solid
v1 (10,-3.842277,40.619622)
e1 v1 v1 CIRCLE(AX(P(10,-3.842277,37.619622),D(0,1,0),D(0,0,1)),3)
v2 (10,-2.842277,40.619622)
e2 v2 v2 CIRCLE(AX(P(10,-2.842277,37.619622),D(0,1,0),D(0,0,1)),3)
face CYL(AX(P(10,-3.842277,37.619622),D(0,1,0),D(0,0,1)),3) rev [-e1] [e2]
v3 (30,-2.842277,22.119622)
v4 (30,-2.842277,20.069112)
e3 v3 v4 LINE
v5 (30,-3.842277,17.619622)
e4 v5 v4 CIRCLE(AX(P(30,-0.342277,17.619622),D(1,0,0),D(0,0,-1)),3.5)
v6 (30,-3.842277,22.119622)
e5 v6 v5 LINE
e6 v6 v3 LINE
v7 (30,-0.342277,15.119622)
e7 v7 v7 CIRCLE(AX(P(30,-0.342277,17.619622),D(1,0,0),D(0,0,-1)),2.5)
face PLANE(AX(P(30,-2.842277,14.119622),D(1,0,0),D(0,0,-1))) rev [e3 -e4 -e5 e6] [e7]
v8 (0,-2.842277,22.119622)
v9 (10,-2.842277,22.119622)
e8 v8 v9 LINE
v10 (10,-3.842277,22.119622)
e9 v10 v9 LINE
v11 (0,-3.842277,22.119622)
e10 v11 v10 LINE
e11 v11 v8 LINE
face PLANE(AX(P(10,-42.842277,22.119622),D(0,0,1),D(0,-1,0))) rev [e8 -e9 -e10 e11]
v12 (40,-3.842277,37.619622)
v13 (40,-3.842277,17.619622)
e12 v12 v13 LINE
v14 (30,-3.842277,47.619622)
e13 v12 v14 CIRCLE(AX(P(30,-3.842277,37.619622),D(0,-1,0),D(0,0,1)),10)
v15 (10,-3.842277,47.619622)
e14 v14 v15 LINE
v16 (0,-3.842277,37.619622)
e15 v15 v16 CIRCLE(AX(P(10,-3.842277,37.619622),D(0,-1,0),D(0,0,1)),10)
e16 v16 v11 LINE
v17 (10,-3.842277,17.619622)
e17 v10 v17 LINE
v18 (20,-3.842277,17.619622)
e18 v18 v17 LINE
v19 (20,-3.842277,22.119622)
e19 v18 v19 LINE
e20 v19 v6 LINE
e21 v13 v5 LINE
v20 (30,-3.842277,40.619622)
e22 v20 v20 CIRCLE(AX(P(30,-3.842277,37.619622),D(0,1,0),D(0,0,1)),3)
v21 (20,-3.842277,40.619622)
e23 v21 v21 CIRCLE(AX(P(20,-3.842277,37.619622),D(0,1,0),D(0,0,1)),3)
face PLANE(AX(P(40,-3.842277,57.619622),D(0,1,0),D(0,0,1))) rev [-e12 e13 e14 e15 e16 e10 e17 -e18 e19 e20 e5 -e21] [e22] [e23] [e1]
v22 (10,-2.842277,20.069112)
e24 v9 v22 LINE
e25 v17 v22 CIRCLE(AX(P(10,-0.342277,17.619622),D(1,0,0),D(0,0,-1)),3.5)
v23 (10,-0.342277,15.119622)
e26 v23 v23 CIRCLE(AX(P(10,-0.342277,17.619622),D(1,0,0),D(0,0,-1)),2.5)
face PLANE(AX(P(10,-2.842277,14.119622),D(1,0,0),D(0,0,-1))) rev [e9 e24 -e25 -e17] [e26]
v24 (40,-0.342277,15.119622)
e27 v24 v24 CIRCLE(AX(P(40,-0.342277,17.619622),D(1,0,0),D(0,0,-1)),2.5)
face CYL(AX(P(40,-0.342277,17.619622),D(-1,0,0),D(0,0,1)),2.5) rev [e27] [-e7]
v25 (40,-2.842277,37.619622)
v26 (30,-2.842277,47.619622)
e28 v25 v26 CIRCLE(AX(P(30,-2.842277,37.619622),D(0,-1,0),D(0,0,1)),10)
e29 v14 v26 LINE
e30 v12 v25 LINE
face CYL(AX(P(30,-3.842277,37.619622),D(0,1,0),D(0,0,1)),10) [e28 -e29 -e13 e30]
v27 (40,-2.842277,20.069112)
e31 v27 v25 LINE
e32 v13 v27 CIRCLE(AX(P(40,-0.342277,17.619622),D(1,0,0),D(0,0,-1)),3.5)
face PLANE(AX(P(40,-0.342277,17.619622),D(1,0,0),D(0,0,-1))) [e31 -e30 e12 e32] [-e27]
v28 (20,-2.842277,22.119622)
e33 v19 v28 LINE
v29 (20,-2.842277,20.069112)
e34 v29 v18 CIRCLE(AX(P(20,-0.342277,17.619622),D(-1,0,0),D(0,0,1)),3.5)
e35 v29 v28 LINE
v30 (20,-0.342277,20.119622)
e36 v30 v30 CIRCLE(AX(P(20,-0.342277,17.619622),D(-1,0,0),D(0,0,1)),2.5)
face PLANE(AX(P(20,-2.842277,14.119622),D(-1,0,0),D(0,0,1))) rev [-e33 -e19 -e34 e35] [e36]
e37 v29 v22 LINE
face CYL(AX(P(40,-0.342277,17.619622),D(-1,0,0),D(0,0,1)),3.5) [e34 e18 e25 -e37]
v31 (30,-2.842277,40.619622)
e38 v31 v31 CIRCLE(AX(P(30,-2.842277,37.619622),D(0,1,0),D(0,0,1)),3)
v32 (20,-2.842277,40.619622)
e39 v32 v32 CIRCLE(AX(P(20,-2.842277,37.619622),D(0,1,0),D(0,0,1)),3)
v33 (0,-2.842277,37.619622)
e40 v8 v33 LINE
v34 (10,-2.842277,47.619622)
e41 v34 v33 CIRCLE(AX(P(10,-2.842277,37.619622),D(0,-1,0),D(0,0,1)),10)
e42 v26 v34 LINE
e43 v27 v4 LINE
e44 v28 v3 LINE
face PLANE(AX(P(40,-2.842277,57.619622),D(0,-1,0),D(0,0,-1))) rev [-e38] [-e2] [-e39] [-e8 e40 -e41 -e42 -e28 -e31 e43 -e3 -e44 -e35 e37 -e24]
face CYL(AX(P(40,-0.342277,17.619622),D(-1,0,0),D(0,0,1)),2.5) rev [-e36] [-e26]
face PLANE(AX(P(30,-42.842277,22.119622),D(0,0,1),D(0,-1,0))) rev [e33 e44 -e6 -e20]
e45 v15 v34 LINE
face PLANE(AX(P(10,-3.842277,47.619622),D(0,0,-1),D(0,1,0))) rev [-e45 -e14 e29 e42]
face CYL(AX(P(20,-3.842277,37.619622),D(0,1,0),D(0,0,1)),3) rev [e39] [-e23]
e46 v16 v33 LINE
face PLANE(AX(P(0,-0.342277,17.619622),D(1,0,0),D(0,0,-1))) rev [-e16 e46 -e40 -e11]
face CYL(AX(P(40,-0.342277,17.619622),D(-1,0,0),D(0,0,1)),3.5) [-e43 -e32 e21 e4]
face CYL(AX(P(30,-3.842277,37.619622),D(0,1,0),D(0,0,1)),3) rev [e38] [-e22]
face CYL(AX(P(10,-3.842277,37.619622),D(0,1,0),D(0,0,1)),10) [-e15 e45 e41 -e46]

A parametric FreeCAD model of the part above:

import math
import FreeCAD as App
import Part
import Sketcher

V = App.Vector

doc = App.newDocument("Part")
body = doc.addObject("PartDesign::Body", "Body")

# Sketch on YZ plane
sketch1 = body.newObject("Sketcher::SketchObject", "Sketch")
sketch1.AttachmentSupport = (doc.getObject("YZ_Plane"), [""])
sketch1.MapMode = "FlatFace"
sketch1.addGeometry(Part.LineSegment(V(-2.8, 20.1, 0), V(-2.8, 57.6, 0)), False)
sketch1.addGeometry(Part.LineSegment(V(-2.8, 57.6, 0), V(-3.8, 57.6, 0)), False)
sketch1.addGeometry(Part.LineSegment(V(-3.8, 57.6, 0), V(-3.8, 17.6, 0)), False)
sketch1.addGeometry(Part.ArcOfCircle(Part.Circle(V(-0.3, 17.6, 0), V(0, 0, 1), 3.5), math.radians(180), math.radians(496)), False)
sketch1.addGeometry(Part.Circle(V(-0.3, 17.6, 0), V(0, 0, 1), 2.5), False)
sketch1.addConstraint(Sketcher.Constraint("Coincident", 0, 2, 1, 1))
sketch1.addConstraint(Sketcher.Constraint("Coincident", 1, 2, 2, 1))
sketch1.addConstraint(Sketcher.Constraint("Tangent", 2, 2, 3, 1))
sketch1.addConstraint(Sketcher.Constraint("Coincident", 3, 2, 0, 1))
sketch1.addConstraint(Sketcher.Constraint("Vertical", 0))
sketch1.addConstraint(Sketcher.Constraint("Horizontal", 1))
sketch1.addConstraint(Sketcher.Constraint("Vertical", 2))
sketch1.addConstraint(Sketcher.Constraint("Coincident", 4, 3, 3, 3))
sketch1.addConstraint(Sketcher.Constraint("Diameter", 4, 5.0))
sketch1.addConstraint(Sketcher.Constraint("Radius", 3, 3.5))
sketch1.addConstraint(Sketcher.Constraint("DistanceX", 1, 2, 1, 1, 1.0))
sketch1.addConstraint(Sketcher.Constraint("DistanceY", 2, 2, 2, 1, 40.0))
sketch1.addConstraint(Sketcher.Constraint("DistanceY", -1, 1, 3, 2, 20.069112))
sketch1.addConstraint(Sketcher.Constraint("DistanceX", 3, 3, -1, 1, 0.342277))
pad1 = body.newObject("PartDesign::Pad", "Pad")
pad1.Profile = sketch1
pad1.Length = 40

# Sketch on XY plane
sketch2 = body.newObject("Sketcher::SketchObject", "Sketch001")
sketch2.AttachmentSupport = (doc.getObject("XY_Plane"), [""])
sketch2.MapMode = "FlatFace"
sketch2.AttachmentOffset = App.Placement(V(0, 0, 57.619622), App.Rotation())
sketch2.addGeometry(Part.LineSegment(V(20, 4, 0), V(20, -3, 0)), False)
sketch2.addGeometry(Part.LineSegment(V(20, -3, 0), V(30, -3, 0)), False)
sketch2.addGeometry(Part.LineSegment(V(30, -3, 0), V(30, 4, 0)), False)
sketch2.addGeometry(Part.LineSegment(V(30, 4, 0), V(20, 4, 0)), False)
sketch2.addGeometry(Part.LineSegment(V(0, 4, 0), V(0, -3, 0)), False)
sketch2.addGeometry(Part.LineSegment(V(0, -3, 0), V(10, -3, 0)), False)
sketch2.addGeometry(Part.LineSegment(V(10, -3, 0), V(10, 4, 0)), False)
sketch2.addGeometry(Part.LineSegment(V(10, 4, 0), V(0, 4, 0)), False)
sketch2.addConstraint(Sketcher.Constraint("Coincident", 0, 2, 1, 1))
sketch2.addConstraint(Sketcher.Constraint("Coincident", 1, 2, 2, 1))
sketch2.addConstraint(Sketcher.Constraint("Coincident", 2, 2, 3, 1))
sketch2.addConstraint(Sketcher.Constraint("Coincident", 3, 2, 0, 1))
sketch2.addConstraint(Sketcher.Constraint("Coincident", 4, 2, 5, 1))
sketch2.addConstraint(Sketcher.Constraint("Coincident", 5, 2, 6, 1))
sketch2.addConstraint(Sketcher.Constraint("Coincident", 6, 2, 7, 1))
sketch2.addConstraint(Sketcher.Constraint("Coincident", 7, 2, 4, 1))
sketch2.addConstraint(Sketcher.Constraint("Vertical", 0))
sketch2.addConstraint(Sketcher.Constraint("Horizontal", 1))
sketch2.addConstraint(Sketcher.Constraint("Vertical", 2))
sketch2.addConstraint(Sketcher.Constraint("Horizontal", 3))
sketch2.addConstraint(Sketcher.Constraint("Vertical", 4))
sketch2.addConstraint(Sketcher.Constraint("Horizontal", 5))
sketch2.addConstraint(Sketcher.Constraint("Vertical", 6))
sketch2.addConstraint(Sketcher.Constraint("Horizontal", 7))
sketch2.addConstraint(Sketcher.Constraint("PointOnObject", 4, 2, -2))
sketch2.addConstraint(Sketcher.Constraint("Horizontal", 1, 2, 4, 2))
sketch2.addConstraint(Sketcher.Constraint("Horizontal", 3, 2, 6, 2))
sketch2.addConstraint(Sketcher.Constraint("Equal", 3, 5))
sketch2.addConstraint(Sketcher.Constraint("DistanceX", 1, 1, 1, 2, 10.0))
sketch2.addConstraint(Sketcher.Constraint("DistanceY", 0, 2, 0, 1, 7.0))
sketch2.addConstraint(Sketcher.Constraint("DistanceX", -1, 1, 0, 2, 20.0))
sketch2.addConstraint(Sketcher.Constraint("DistanceY", 0, 2, -1, 1, 2.842277))
pocket1 = body.newObject("PartDesign::Pocket", "Pocket")
pocket1.Profile = sketch2
pocket1.Type = "ThroughAll"

# Sketch on XZ plane
sketch3 = body.newObject("Sketcher::SketchObject", "Sketch002")
sketch3.AttachmentSupport = (doc.getObject("XZ_Plane"), [""])
sketch3.MapMode = "FlatFace"
sketch3.AttachmentOffset = App.Placement(V(0, 0, 2.842277), App.Rotation())
sketch3.addGeometry(Part.LineSegment(V(0, 14, 0), V(0, 22, 0)), False)
sketch3.addGeometry(Part.LineSegment(V(0, 22, 0), V(10, 22, 0)), False)
sketch3.addGeometry(Part.LineSegment(V(10, 22, 0), V(10, 14, 0)), False)
sketch3.addGeometry(Part.LineSegment(V(10, 14, 0), V(0, 14, 0)), False)
sketch3.addGeometry(Part.LineSegment(V(20, 14, 0), V(20, 22, 0)), False)
sketch3.addGeometry(Part.LineSegment(V(20, 22, 0), V(30, 22, 0)), False)
sketch3.addGeometry(Part.LineSegment(V(30, 22, 0), V(30, 14, 0)), False)
sketch3.addGeometry(Part.LineSegment(V(30, 14, 0), V(20, 14, 0)), False)
sketch3.addConstraint(Sketcher.Constraint("Coincident", 0, 2, 1, 1))
sketch3.addConstraint(Sketcher.Constraint("Coincident", 1, 2, 2, 1))
sketch3.addConstraint(Sketcher.Constraint("Coincident", 2, 2, 3, 1))
sketch3.addConstraint(Sketcher.Constraint("Coincident", 3, 2, 0, 1))
sketch3.addConstraint(Sketcher.Constraint("Coincident", 4, 2, 5, 1))
sketch3.addConstraint(Sketcher.Constraint("Coincident", 5, 2, 6, 1))
sketch3.addConstraint(Sketcher.Constraint("Coincident", 6, 2, 7, 1))
sketch3.addConstraint(Sketcher.Constraint("Coincident", 7, 2, 4, 1))
sketch3.addConstraint(Sketcher.Constraint("Vertical", 0))
sketch3.addConstraint(Sketcher.Constraint("Horizontal", 1))
sketch3.addConstraint(Sketcher.Constraint("Vertical", 2))
sketch3.addConstraint(Sketcher.Constraint("Horizontal", 3))
sketch3.addConstraint(Sketcher.Constraint("Vertical", 4))
sketch3.addConstraint(Sketcher.Constraint("Horizontal", 5))
sketch3.addConstraint(Sketcher.Constraint("Vertical", 6))
sketch3.addConstraint(Sketcher.Constraint("Horizontal", 7))
sketch3.addConstraint(Sketcher.Constraint("PointOnObject", 0, 2, -2))
sketch3.addConstraint(Sketcher.Constraint("Horizontal", 1, 2, 4, 2))
sketch3.addConstraint(Sketcher.Constraint("Horizontal", 3, 2, 6, 2))
sketch3.addConstraint(Sketcher.Constraint("Equal", 3, 5))
sketch3.addConstraint(Sketcher.Constraint("DistanceX", 1, 1, 1, 2, 10.0))
sketch3.addConstraint(Sketcher.Constraint("DistanceY", 0, 1, 0, 2, 8.0))
sketch3.addConstraint(Sketcher.Constraint("DistanceX", -1, 1, 4, 2, 20.0))
sketch3.addConstraint(Sketcher.Constraint("DistanceY", -1, 1, 0, 2, 22.119622))
pocket2 = body.newObject("PartDesign::Pocket", "Pocket001")
pocket2.Profile = sketch3
pocket2.Length = 40
pocket2.Reversed = True

# Sketch on XZ plane
sketch4 = body.newObject("Sketcher::SketchObject", "Sketch003")
sketch4.AttachmentSupport = (doc.getObject("XZ_Plane"), [""])
sketch4.MapMode = "FlatFace"
sketch4.AttachmentOffset = App.Placement(V(0, 0, 2.842277), App.Rotation())
sketch4.addGeometry(Part.Circle(V(10, 37.6, 0), V(0, 0, 1), 3), False)
sketch4.addGeometry(Part.Circle(V(20, 37.6, 0), V(0, 0, 1), 3), False)
sketch4.addGeometry(Part.Circle(V(30, 37.6, 0), V(0, 0, 1), 3), False)
sketch4.addGeometry(Part.LineSegment(V(30, 47.6, 0), V(10, 47.6, 0)), False)
sketch4.addGeometry(Part.ArcOfCircle(Part.Circle(V(10, 37.6, 0), V(0, 0, 1), 10), math.radians(90), math.radians(180)), False)
sketch4.addGeometry(Part.LineSegment(V(0, 37.6, 0), V(0, 57.6, 0)), False)
sketch4.addGeometry(Part.LineSegment(V(0, 57.6, 0), V(40, 57.6, 0)), False)
sketch4.addGeometry(Part.LineSegment(V(40, 57.6, 0), V(40, 37.6, 0)), False)
sketch4.addGeometry(Part.ArcOfCircle(Part.Circle(V(30, 37.6, 0), V(0, 0, 1), 10), math.radians(0), math.radians(90)), False)
sketch4.addConstraint(Sketcher.Constraint("Tangent", 3, 2, 4, 1))
sketch4.addConstraint(Sketcher.Constraint("Tangent", 4, 2, 5, 1))
sketch4.addConstraint(Sketcher.Constraint("Coincident", 5, 2, 6, 1))
sketch4.addConstraint(Sketcher.Constraint("Coincident", 6, 2, 7, 1))
sketch4.addConstraint(Sketcher.Constraint("Tangent", 7, 2, 8, 1))
sketch4.addConstraint(Sketcher.Constraint("Tangent", 8, 2, 3, 1))
sketch4.addConstraint(Sketcher.Constraint("Horizontal", 3))
sketch4.addConstraint(Sketcher.Constraint("Vertical", 5))
sketch4.addConstraint(Sketcher.Constraint("Horizontal", 6))
sketch4.addConstraint(Sketcher.Constraint("Vertical", 7))
sketch4.addConstraint(Sketcher.Constraint("Coincident", 4, 3, 0, 3))
sketch4.addConstraint(Sketcher.Constraint("Coincident", 8, 3, 2, 3))
sketch4.addConstraint(Sketcher.Constraint("Equal", 0, 1))
sketch4.addConstraint(Sketcher.Constraint("Equal", 1, 2))
sketch4.addConstraint(Sketcher.Constraint("Equal", 4, 8))
sketch4.addConstraint(Sketcher.Constraint("PointOnObject", 4, 2, -2))
sketch4.addConstraint(Sketcher.Constraint("Horizontal", 0, 3, 1, 3))
sketch4.addConstraint(Sketcher.Constraint("Equal", 3, 5))
sketch4.addConstraint(Sketcher.Constraint("Diameter", 0, 6.0))
sketch4.addConstraint(Sketcher.Constraint("Radius", 4, 10.0))
sketch4.addConstraint(Sketcher.Constraint("DistanceX", 3, 2, 3, 1, 20.0))
sketch4.addConstraint(Sketcher.Constraint("DistanceX", -1, 1, 1, 3, 20.0))
sketch4.addConstraint(Sketcher.Constraint("DistanceY", -1, 1, 0, 3, 37.619622))
pocket3 = body.newObject("PartDesign::Pocket", "Pocket002")
pocket3.Profile = sketch4
pocket3.Type = "ThroughAll"
pocket3.Reversed = True

doc.recompute()
